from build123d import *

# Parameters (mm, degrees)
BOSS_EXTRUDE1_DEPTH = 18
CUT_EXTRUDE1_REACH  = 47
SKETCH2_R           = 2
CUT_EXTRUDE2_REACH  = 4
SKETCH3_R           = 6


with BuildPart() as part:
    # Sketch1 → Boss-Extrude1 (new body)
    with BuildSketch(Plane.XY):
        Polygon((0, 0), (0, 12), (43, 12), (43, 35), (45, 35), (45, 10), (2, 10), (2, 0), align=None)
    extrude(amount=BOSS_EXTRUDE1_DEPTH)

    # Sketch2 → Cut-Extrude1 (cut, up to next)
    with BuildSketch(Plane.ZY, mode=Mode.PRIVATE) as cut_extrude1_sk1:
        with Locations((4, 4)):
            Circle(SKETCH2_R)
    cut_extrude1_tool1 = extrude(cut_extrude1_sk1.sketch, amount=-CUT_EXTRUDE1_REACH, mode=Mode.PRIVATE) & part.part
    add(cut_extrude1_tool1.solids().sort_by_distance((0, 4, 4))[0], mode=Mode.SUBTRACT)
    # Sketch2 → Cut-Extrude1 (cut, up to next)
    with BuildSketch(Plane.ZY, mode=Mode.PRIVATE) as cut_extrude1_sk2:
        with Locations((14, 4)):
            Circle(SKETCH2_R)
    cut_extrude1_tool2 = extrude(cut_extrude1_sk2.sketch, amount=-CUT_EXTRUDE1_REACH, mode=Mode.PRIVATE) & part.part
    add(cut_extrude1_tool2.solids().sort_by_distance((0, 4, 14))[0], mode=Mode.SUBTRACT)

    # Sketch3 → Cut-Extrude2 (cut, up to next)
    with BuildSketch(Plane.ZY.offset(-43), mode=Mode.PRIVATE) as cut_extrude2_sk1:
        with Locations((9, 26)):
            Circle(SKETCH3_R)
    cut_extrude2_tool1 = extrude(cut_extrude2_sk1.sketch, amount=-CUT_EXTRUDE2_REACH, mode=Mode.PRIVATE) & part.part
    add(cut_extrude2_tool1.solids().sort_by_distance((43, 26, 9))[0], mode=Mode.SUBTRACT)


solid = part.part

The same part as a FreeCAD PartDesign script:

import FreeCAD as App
import Part
import Sketcher

V = App.Vector
Q = App.Units.Quantity

doc = App.newDocument("Part")
body = doc.addObject("PartDesign::Body", "Body")

sketch1 = doc.addObject("Sketcher::SketchObject", "Sketch")
body.addObject(sketch1)
sketch1.AttachmentSupport = (doc.XY_Plane, [""])
sketch1.MapMode = "FlatFace"
sketch1.addGeometry([
    Part.LineSegment(V(0, 12, 0), V(0, 0, 0)),
    Part.LineSegment(V(0, 0, 0), V(2, 0, 0)),
    Part.LineSegment(V(2, 0, 0), V(2, 10, 0)),
    Part.LineSegment(V(2, 10, 0), V(45, 10, 0)),
    Part.LineSegment(V(45, 10, 0), V(45, 35, 0)),
    Part.LineSegment(V(45, 35, 0), V(43, 35, 0)),
    Part.LineSegment(V(43, 35, 0), V(43, 12, 0)),
    Part.LineSegment(V(43, 12, 0), V(0, 12, 0)),
], False)
sketch1.addConstraint([
    Sketcher.Constraint("Coincident", 0, 2, 1, 1),
    Sketcher.Constraint("Coincident", 1, 2, 2, 1),
    Sketcher.Constraint("Coincident", 2, 2, 3, 1),
    Sketcher.Constraint("Coincident", 3, 2, 4, 1),
    Sketcher.Constraint("Coincident", 4, 2, 5, 1),
    Sketcher.Constraint("Coincident", 5, 2, 6, 1),
    Sketcher.Constraint("Coincident", 6, 2, 7, 1),
    Sketcher.Constraint("Coincident", 7, 2, 0, 1),
    Sketcher.Constraint("Vertical", 0),
    Sketcher.Constraint("Horizontal", 1),
    Sketcher.Constraint("Vertical", 2),
    Sketcher.Constraint("Horizontal", 3),
    Sketcher.Constraint("Vertical", 4),
    Sketcher.Constraint("Horizontal", 5),
    Sketcher.Constraint("Vertical", 6),
    Sketcher.Constraint("Horizontal", 7),
    Sketcher.Constraint("Coincident", 0, 2, -1, 1),
    Sketcher.Constraint("Equal", 1, 5),
    Sketcher.Constraint("DistanceX", 1, 1, 1, 2, Q("2 mm")),
    Sketcher.Constraint("DistanceX", 3, 1, 3, 2, Q("43 mm")),
    Sketcher.Constraint("DistanceY", 0, 2, 0, 1, Q("12 mm")),
    Sketcher.Constraint("DistanceY", 2, 1, 2, 2, Q("10 mm")),
    Sketcher.Constraint("DistanceY", 4, 1, 4, 2, Q("25 mm")),
])
pad1 = doc.addObject("PartDesign::Pad", "Pad")
body.addObject(pad1)
pad1.Profile = sketch1
pad1.Length = 18

sketch2 = doc.addObject("Sketcher::SketchObject", "Sketch001")
body.addObject(sketch2)
sketch2.AttachmentSupport = (doc.YZ_Plane, [""])
sketch2.MapMode = "FlatFace"
sketch2.addGeometry(Part.Circle(V(4, 4, 0), V(0, 0, 1), 2), False)
sketch2.addConstraint([
    Sketcher.Constraint("Diameter", 0, Q("4 mm")),
    Sketcher.Constraint("DistanceX", -1, 1, 0, 3, Q("4 mm")),
    Sketcher.Constraint("DistanceY", -1, 1, 0, 3, Q("4 mm")),
])
pocket1 = doc.addObject("PartDesign::Pocket", "Pocket")
body.addObject(pocket1)
pocket1.Profile = sketch2
pocket1.Type = "UpToFirst"
pocket1.Reversed = True

sketch3 = doc.addObject("Sketcher::SketchObject", "Sketch002")
body.addObject(sketch3)
sketch3.AttachmentSupport = (doc.YZ_Plane, [""])
sketch3.MapMode = "FlatFace"
sketch3.addGeometry(Part.Circle(V(4, 14, 0), V(0, 0, 1), 2), False)
sketch3.addConstraint([
    Sketcher.Constraint("Diameter", 0, Q("4 mm")),
    Sketcher.Constraint("DistanceX", -1, 1, 0, 3, Q("4 mm")),
    Sketcher.Constraint("DistanceY", -1, 1, 0, 3, Q("14 mm")),
])
pocket2 = doc.addObject("PartDesign::Pocket", "Pocket001")
body.addObject(pocket2)
pocket2.Profile = sketch3
pocket2.Type = "UpToFirst"
pocket2.Reversed = True

sketch4 = doc.addObject("Sketcher::SketchObject", "Sketch003")
body.addObject(sketch4)
sketch4.AttachmentSupport = (doc.YZ_Plane, [""])
sketch4.MapMode = "FlatFace"
sketch4.AttachmentOffset = App.Placement(V(0, 0, 43), App.Rotation())
sketch4.addGeometry(Part.Circle(V(26, 9, 0), V(0, 0, 1), 6), False)
sketch4.addConstraint([
    Sketcher.Constraint("Diameter", 0, Q("12 mm")),
    Sketcher.Constraint("DistanceX", -1, 1, 0, 3, Q("26 mm")),
    Sketcher.Constraint("DistanceY", -1, 1, 0, 3, Q("9 mm")),
])
pocket3 = doc.addObject("PartDesign::Pocket", "Pocket002")
body.addObject(pocket3)
pocket3.Profile = sketch4
pocket3.Type = "UpToFirst"
pocket3.Reversed = True

doc.recompute()
